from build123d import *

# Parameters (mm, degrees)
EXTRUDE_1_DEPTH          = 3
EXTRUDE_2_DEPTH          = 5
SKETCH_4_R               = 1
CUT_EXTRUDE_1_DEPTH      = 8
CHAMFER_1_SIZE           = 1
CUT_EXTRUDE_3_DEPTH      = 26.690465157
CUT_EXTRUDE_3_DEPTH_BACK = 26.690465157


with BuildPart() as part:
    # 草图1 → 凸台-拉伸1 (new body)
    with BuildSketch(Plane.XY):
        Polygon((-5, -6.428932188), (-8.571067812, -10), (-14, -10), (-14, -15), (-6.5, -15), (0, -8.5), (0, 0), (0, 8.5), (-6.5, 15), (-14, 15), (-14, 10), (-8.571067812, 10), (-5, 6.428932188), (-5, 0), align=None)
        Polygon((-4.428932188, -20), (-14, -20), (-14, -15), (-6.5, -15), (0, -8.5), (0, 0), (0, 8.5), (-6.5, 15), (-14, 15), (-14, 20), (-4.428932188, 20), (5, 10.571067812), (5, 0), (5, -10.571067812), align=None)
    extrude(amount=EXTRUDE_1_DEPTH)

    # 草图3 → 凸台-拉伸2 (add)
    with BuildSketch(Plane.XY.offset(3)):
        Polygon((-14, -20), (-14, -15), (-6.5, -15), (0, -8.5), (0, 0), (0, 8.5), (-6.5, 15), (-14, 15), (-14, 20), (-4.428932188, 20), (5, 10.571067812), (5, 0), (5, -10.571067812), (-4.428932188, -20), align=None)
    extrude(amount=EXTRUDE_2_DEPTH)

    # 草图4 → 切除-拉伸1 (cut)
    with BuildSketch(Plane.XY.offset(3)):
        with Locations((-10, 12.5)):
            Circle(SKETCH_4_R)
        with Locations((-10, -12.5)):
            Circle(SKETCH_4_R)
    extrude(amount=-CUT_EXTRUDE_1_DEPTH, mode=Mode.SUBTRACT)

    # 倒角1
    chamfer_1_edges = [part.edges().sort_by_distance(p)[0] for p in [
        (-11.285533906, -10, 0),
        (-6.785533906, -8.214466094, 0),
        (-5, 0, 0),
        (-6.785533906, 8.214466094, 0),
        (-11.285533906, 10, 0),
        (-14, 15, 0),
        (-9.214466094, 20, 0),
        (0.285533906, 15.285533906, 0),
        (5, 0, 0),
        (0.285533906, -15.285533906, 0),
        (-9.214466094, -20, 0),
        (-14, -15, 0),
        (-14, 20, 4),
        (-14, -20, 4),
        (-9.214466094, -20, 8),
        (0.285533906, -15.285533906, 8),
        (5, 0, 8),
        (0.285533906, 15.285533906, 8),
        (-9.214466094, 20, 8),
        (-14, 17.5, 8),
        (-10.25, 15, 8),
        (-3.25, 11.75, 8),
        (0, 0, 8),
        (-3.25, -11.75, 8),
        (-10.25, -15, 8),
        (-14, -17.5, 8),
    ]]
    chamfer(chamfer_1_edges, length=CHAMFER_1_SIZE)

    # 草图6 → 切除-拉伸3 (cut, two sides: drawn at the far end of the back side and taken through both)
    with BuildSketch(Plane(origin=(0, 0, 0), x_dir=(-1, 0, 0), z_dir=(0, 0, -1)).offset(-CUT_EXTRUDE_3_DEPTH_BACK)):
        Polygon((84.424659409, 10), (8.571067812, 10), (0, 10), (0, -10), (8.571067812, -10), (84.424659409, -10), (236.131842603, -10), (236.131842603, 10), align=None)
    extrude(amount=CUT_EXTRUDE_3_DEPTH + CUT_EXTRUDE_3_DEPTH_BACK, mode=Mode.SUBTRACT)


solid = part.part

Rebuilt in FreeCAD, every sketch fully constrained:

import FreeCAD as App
import Part
import Sketcher
from FreeCAD import Vector
Q = App.Units.Quantity


def edges_at(feature, points):
    """Names of the edges that pass closest to the given points."""
    edges = feature.Shape.Edges
    near = lambda p: min(range(len(edges)), key=lambda i: edges[i].distToShape(Part.Vertex(*p))[0])
    return sorted({f"Edge{near(p) + 1}" for p in points})

doc = App.newDocument("Part")
body = doc.addObject("PartDesign::Body", "Body")

# Sketch on XY plane
sketch1 = body.newObject("Sketcher::SketchObject", "Sketch")
sketch1.AttachmentSupport = (doc.getObject("XY_Plane"), [""])
sketch1.MapMode = "FlatFace"
sketch1.addGeometry([
    Part.LineSegment(Vector(-5, -6, 0), Vector(-9, -10, 0)),  # 0
    Part.LineSegment(Vector(-9, -10, 0), Vector(-14, -10, 0)),  # 1
    Part.LineSegment(Vector(-14, -10, 0), Vector(-14, -20, 0)),  # 2
    Part.LineSegment(Vector(-14, -20, 0), Vector(-4, -20, 0)),  # 3
    Part.LineSegment(Vector(-4, -20, 0), Vector(5, -11, 0)),  # 4
    Part.LineSegment(Vector(5, -11, 0), Vector(5, 11, 0)),  # 5
    Part.LineSegment(Vector(5, 11, 0), Vector(-4, 20, 0)),  # 6
    Part.LineSegment(Vector(-4, 20, 0), Vector(-14, 20, 0)),  # 7
    Part.LineSegment(Vector(-14, 20, 0), Vector(-14, 10, 0)),  # 8
    Part.LineSegment(Vector(-14, 10, 0), Vector(-9, 10, 0)),  # 9
    Part.LineSegment(Vector(-9, 10, 0), Vector(-5, 6, 0)),  # 10
    Part.LineSegment(Vector(-5, 6, 0), Vector(-5, -6, 0)),  # 11
], False)
sketch1.addConstraint([
    Sketcher.Constraint("Coincident", 0, 2, 1, 1),
    Sketcher.Constraint("Coincident", 1, 2, 2, 1),
    Sketcher.Constraint("Coincident", 2, 2, 3, 1),
    Sketcher.Constraint("Coincident", 3, 2, 4, 1),
    Sketcher.Constraint("Coincident", 4, 2, 5, 1),
    Sketcher.Constraint("Coincident", 5, 2, 6, 1),
    Sketcher.Constraint("Coincident", 6, 2, 7, 1),
    Sketcher.Constraint("Coincident", 7, 2, 8, 1),
    Sketcher.Constraint("Coincident", 8, 2, 9, 1),
    Sketcher.Constraint("Coincident", 9, 2, 10, 1),
    Sketcher.Constraint("Coincident", 10, 2, 11, 1),
    Sketcher.Constraint("Coincident", 11, 2, 0, 1),
    Sketcher.Constraint("Horizontal", 1),
    Sketcher.Constraint("Vertical", 2),
    Sketcher.Constraint("Horizontal", 3),
    Sketcher.Constraint("Vertical", 5),
    Sketcher.Constraint("Horizontal", 7),
    Sketcher.Constraint("Vertical", 8),
    Sketcher.Constraint("Horizontal", 9),
    Sketcher.Constraint("Vertical", 11),
    Sketcher.Constraint("Symmetric", 3, 2, 6, 2, -1),
    Sketcher.Constraint("Symmetric", 1, 2, 8, 2, -1),
    Sketcher.Constraint("Parallel", 0, 4),
    Sketcher.Constraint("Perpendicular", 4, 6),
    Sketcher.Constraint("Parallel", 6, 10),
    Sketcher.Constraint("Vertical", 0, 2, 9, 2),
    Sketcher.Constraint("Equal", 4, 6),
    Sketcher.Constraint("DistanceY", 2, 2, 2, 1, Q("10 mm")),
    Sketcher.Constraint("DistanceY", 0, 2, -1, 1, Q("10 mm")),
    Sketcher.Constraint("DistanceX", 1, 2, -1, 1, Q("14 mm")),
    Sketcher.Constraint("DistanceX", -1, 1, 4, 2, Q("5 mm")),
    Sketcher.Constraint("DistanceX", 10, 2, -1, 1, Q("5 mm")),
    Sketcher.Constraint("DistanceX", 1, 2, 1, 1, Q("5.428932 mm")),
    Sketcher.Constraint("DistanceX", 3, 1, 3, 2, Q("9.571068 mm")),
])
pad1 = body.newObject("PartDesign::Pad", "Pad")
pad1.Profile = sketch1
pad1.Length = 3

# Sketch on XY plane
sketch2 = body.newObject("Sketcher::SketchObject", "Sketch001")
sketch2.AttachmentSupport = (doc.getObject("XY_Plane"), [""])
sketch2.MapMode = "FlatFace"
sketch2.AttachmentOffset = App.Placement(Vector(0, 0, 3), App.Rotation())
sketch2.addGeometry([
    Part.LineSegment(Vector(-14, -15, 0), Vector(-14, -20, 0)),  # 0
    Part.LineSegment(Vector(-14, -20, 0), Vector(-4, -20, 0)),  # 1
    Part.LineSegment(Vector(-4, -20, 0), Vector(5, -11, 0)),  # 2
    Part.LineSegment(Vector(5, -11, 0), Vector(5, 11, 0)),  # 3
    Part.LineSegment(Vector(5, 11, 0), Vector(-4, 20, 0)),  # 4
    Part.LineSegment(Vector(-4, 20, 0), Vector(-14, 20, 0)),  # 5
    Part.LineSegment(Vector(-14, 20, 0), Vector(-14, 15, 0)),  # 6
    Part.LineSegment(Vector(-14, 15, 0), Vector(-6, 15, 0)),  # 7
    Part.LineSegment(Vector(-6, 15, 0), Vector(0, 8, 0)),  # 8
    Part.LineSegment(Vector(0, 8, 0), Vector(0, -8, 0)),  # 9
    Part.LineSegment(Vector(0, -8, 0), Vector(-6, -15, 0)),  # 10
    Part.LineSegment(Vector(-6, -15, 0), Vector(-14, -15, 0)),  # 11
], False)
sketch2.addConstraint([
    Sketcher.Constraint("Coincident", 0, 2, 1, 1),
    Sketcher.Constraint("Coincident", 1, 2, 2, 1),
    Sketcher.Constraint("Coincident", 2, 2, 3, 1),
    Sketcher.Constraint("Coincident", 3, 2, 4, 1),
    Sketcher.Constraint("Coincident", 4, 2, 5, 1),
    Sketcher.Constraint("Coincident", 5, 2, 6, 1),
    Sketcher.Constraint("Coincident", 6, 2, 7, 1),
    Sketcher.Constraint("Coincident", 7, 2, 8, 1),
    Sketcher.Constraint("Coincident", 8, 2, 9, 1),
    Sketcher.Constraint("Coincident", 9, 2, 10, 1),
    Sketcher.Constraint("Coincident", 10, 2, 11, 1),
    Sketcher.Constraint("Coincident", 11, 2, 0, 1),
    Sketcher.Constraint("Vertical", 0),
    Sketcher.Constraint("Horizontal", 1),
    Sketcher.Constraint("Vertical", 3),
    Sketcher.Constraint("Horizontal", 5),
    Sketcher.Constraint("Vertical", 6),
    Sketcher.Constraint("Horizontal", 7),
    Sketcher.Constraint("Vertical", 9),
    Sketcher.Constraint("Horizontal", 11),
    Sketcher.Constraint("Symmetric", 8, 2, 9, 2, -1, 1),
    Sketcher.Constraint("Symmetric", 1, 2, 4, 2, -1),
    Sketcher.Constraint("Symmetric", 7, 2, 10, 2, -1),
    Sketcher.Constraint("Perpendicular", 2, 4),
    Sketcher.Constraint("Parallel", 4, 8),
    Sketcher.Constraint("Perpendicular", 8, 10),
    Sketcher.Constraint("Vertical", 0, 2, 5, 2),
    Sketcher.Constraint("DistanceY", 0, 2, 0, 1, Q("5 mm")),
    Sketcher.Constraint("DistanceY", 9, 2, 9, 1, Q("17 mm")),
    Sketcher.Constraint("DistanceX", 7, 1, 7, 2, Q("7.5 mm")),
    Sketcher.Constraint("DistanceX", 0, 2, -1, 1, Q("14 mm")),
    Sketcher.Constraint("DistanceX", -1, 1, 2, 2, Q("5 mm")),
    Sketcher.Constraint("DistanceX", 1, 1, 1, 2, Q("9.571068 mm")),
])
pad2 = body.newObject("PartDesign::Pad", "Pad001")
pad2.Profile = sketch2
pad2.Length = 5

# Sketch on XY plane
sketch3 = body.newObject("Sketcher::SketchObject", "Sketch002")
sketch3.AttachmentSupport = (doc.getObject("XY_Plane"), [""])
sketch3.MapMode = "FlatFace"
sketch3.AttachmentOffset = App.Placement(Vector(0, 0, 3), App.Rotation())
sketch3.addGeometry([
    Part.Circle(Vector(-10, 12.5, 0), Vector(0, 0, 1), 1),
    Part.Circle(Vector(-10, -12.5, 0), Vector(0, 0, 1), 1),
], False)
sketch3.addConstraint([
    Sketcher.Constraint("Equal", 0, 1),
    Sketcher.Constraint("Symmetric", 0, 3, 1, 3, -1),
    Sketcher.Constraint("Diameter", 0, Q("2 mm")),
    Sketcher.Constraint("DistanceX", 0, 3, -1, 1, Q("10 mm")),
    Sketcher.Constraint("DistanceY", 1, 3, 0, 3, Q("25 mm")),
])
pocket1 = body.newObject("PartDesign::Pocket", "Pocket")
pocket1.Profile = sketch3
pocket1.Length = 8
doc.recompute()

chamfer = body.newObject("PartDesign::Chamfer", "Chamfer")
chamfer.Base = (pocket1, edges_at(pocket1, [
    (-11.286, -10, 0),
    (-6.786, -8.214, 0),
    (-5, 0, 0),
    (-6.786, 8.214, 0),
    (-11.286, 10, 0),
    (-14, 15, 0),
    (-9.214, 20, 0),
    (0.286, 15.286, 0),
    (5, 0, 0),
    (0.286, -15.286, 0),
    (-9.214, -20, 0),
    (-14, -15, 0),
    (-14, 20, 4),
    (-14, -20, 4),
    (-9.214, -20, 8),
    (0.286, -15.286, 8),
    (5, 0, 8),
    (0.286, 15.286, 8),
    (-9.214, 20, 8),
    (-14, 17.5, 8),
    (-10.25, 15, 8),
    (-3.25, 11.75, 8),
    (0, 0, 8),
    (-3.25, -11.75, 8),
    (-10.25, -15, 8),
    (-14, -17.5, 8),
]))
chamfer.Size = 1

# Sketch on XY plane
sketch4 = body.newObject("Sketcher::SketchObject", "Sketch003")
sketch4.AttachmentSupport = (doc.getObject("XY_Plane"), [""])
sketch4.MapMode = "FlatFace"
sketch4.addGeometry([
    Part.LineSegment(Vector(0, 10, 0), Vector(0, -10, 0)),
    Part.LineSegment(Vector(0, -10, 0), Vector(-236, -10, 0)),
    Part.LineSegment(Vector(-236, -10, 0), Vector(-236, 10, 0)),
    Part.LineSegment(Vector(-236, 10, 0), Vector(0, 10, 0)),
], False)
sketch4.addConstraint([
    Sketcher.Constraint("Coincident", 0, 2, 1, 1),
    Sketcher.Constraint("Coincident", 1, 2, 2, 1),
    Sketcher.Constraint("Coincident", 2, 2, 3, 1),
    Sketcher.Constraint("Coincident", 3, 2, 0, 1),
    Sketcher.Constraint("Vertical", 0),
    Sketcher.Constraint("Horizontal", 1),
    Sketcher.Constraint("Vertical", 2),
    Sketcher.Constraint("Horizontal", 3),
    Sketcher.Constraint("Symmetric", 0, 2, 3, 2, -1, 1),
    Sketcher.Constraint("DistanceY", 0, 2, 0, 1, Q("20 mm")),
    Sketcher.Constraint("DistanceX", 1, 2, 1, 1, Q("236.131843 mm")),
])
pocket2 = body.newObject("PartDesign::Pocket", "Pocket001")
pocket2.Profile = sketch4
pocket2.Type = "ThroughAll"
pocket2.Midplane = True

doc.recompute()
